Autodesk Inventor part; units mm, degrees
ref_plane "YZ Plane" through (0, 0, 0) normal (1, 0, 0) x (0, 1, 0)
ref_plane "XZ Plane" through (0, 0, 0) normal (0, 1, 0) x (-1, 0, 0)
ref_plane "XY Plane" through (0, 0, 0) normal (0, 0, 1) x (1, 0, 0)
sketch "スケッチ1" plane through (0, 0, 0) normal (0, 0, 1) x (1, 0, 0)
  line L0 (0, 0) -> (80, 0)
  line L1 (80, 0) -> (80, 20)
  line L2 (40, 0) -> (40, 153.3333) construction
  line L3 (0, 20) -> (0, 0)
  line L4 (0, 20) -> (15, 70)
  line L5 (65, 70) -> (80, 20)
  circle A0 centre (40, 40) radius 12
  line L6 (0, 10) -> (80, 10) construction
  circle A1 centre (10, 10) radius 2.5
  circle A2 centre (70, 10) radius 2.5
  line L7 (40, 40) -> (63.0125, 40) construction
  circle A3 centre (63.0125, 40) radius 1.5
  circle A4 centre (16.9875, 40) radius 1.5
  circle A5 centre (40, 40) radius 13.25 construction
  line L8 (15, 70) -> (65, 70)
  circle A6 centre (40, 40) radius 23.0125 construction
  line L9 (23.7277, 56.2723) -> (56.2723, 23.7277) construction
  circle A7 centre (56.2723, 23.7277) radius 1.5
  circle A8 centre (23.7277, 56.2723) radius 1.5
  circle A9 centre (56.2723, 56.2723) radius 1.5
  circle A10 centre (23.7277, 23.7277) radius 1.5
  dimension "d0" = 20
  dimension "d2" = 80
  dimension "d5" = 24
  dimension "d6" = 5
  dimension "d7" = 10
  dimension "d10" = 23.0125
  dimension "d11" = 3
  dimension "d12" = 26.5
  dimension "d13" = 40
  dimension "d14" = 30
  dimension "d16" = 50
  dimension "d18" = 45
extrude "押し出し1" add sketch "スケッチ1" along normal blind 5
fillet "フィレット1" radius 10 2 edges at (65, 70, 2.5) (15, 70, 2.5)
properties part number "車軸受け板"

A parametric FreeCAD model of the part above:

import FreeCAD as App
import Part
import Sketcher
from FreeCAD import Vector


def edges_at(feature, points):
    """Names of the edges that pass closest to the given points."""
    edges = feature.Shape.Edges
    near = lambda p: min(range(len(edges)), key=lambda i: edges[i].distToShape(Part.Vertex(*p))[0])
    return sorted({f"Edge{near(p) + 1}" for p in points})

doc = App.newDocument("Part")
body = doc.addObject("PartDesign::Body", "Body")

sketch1 = body.newObject("Sketcher::SketchObject", "Sketch")
sketch1.AttachmentSupport = (doc.getObject("XY_Plane"), [""])
sketch1.MapMode = "FlatFace"
sketch1.addGeometry(Part.LineSegment(Vector(0, 20, 0), Vector(0, 0, 0)), False)
sketch1.addGeometry(Part.LineSegment(Vector(0, 0, 0), Vector(80, 0, 0)), False)
sketch1.addGeometry(Part.LineSegment(Vector(80, 0, 0), Vector(80, 20, 0)), False)
sketch1.addGeometry(Part.LineSegment(Vector(80, 20, 0), Vector(65, 70, 0)), False)
sketch1.addGeometry(Part.LineSegment(Vector(65, 70, 0), Vector(15, 70, 0)), False)
sketch1.addGeometry(Part.LineSegment(Vector(15, 70, 0), Vector(0, 20, 0)), False)
sketch1.addGeometry(Part.Circle(Vector(10, 10, 0), Vector(0, 0, 1), 2.5), False)
sketch1.addGeometry(Part.Circle(Vector(23.7, 23.7, 0), Vector(0, 0, 1), 1.5), False)
sketch1.addGeometry(Part.Circle(Vector(70, 10, 0), Vector(0, 0, 1), 2.5), False)
sketch1.addGeometry(Part.Circle(Vector(56.3, 23.7, 0), Vector(0, 0, 1), 1.5), False)
sketch1.addGeometry(Part.Circle(Vector(17, 40, 0), Vector(0, 0, 1), 1.5), False)
sketch1.addGeometry(Part.Circle(Vector(23.7, 56.3, 0), Vector(0, 0, 1), 1.5), False)
sketch1.addGeometry(Part.Circle(Vector(40, 40, 0), Vector(0, 0, 1), 12), False)
sketch1.addGeometry(Part.Circle(Vector(63, 40, 0), Vector(0, 0, 1), 1.5), False)
sketch1.addGeometry(Part.Circle(Vector(56.3, 56.3, 0), Vector(0, 0, 1), 1.5), False)
sketch1.addConstraint(Sketcher.Constraint("Coincident", 0, 2, 1, 1))
sketch1.addConstraint(Sketcher.Constraint("Coincident", 1, 2, 2, 1))
sketch1.addConstraint(Sketcher.Constraint("Coincident", 2, 2, 3, 1))
sketch1.addConstraint(Sketcher.Constraint("Coincident", 3, 2, 4, 1))
sketch1.addConstraint(Sketcher.Constraint("Coincident", 4, 2, 5, 1))
sketch1.addConstraint(Sketcher.Constraint("Coincident", 5, 2, 0, 1))
sketch1.addConstraint(Sketcher.Constraint("Vertical", 0))
sketch1.addConstraint(Sketcher.Constraint("Horizontal", 1))
sketch1.addConstraint(Sketcher.Constraint("Vertical", 2))
sketch1.addConstraint(Sketcher.Constraint("Horizontal", 4))
sketch1.addConstraint(Sketcher.Constraint("Coincident", 0, 2, -1, 1))
sketch1.addConstraint(Sketcher.Constraint("Equal", 6, 8))
sketch1.addConstraint(Sketcher.Constraint("Equal", 7, 9))
sketch1.addConstraint(Sketcher.Constraint("Equal", 9, 10))
sketch1.addConstraint(Sketcher.Constraint("Equal", 10, 11))
sketch1.addConstraint(Sketcher.Constraint("Equal", 11, 13))
sketch1.addConstraint(Sketcher.Constraint("Equal", 13, 14))
sketch1.addConstraint(Sketcher.Constraint("Horizontal", 6, 3, 8, 3))
sketch1.addConstraint(Sketcher.Constraint("Horizontal", 7, 3, 9, 3))
sketch1.addConstraint(Sketcher.Constraint("Horizontal", 10, 3, 12, 3))
sketch1.addConstraint(Sketcher.Constraint("Horizontal", 12, 3, 13, 3))
sketch1.addConstraint(Sketcher.Constraint("Horizontal", 11, 3, 14, 3))
sketch1.addConstraint(Sketcher.Constraint("Horizontal", 2, 2, 5, 2))
sketch1.addConstraint(Sketcher.Constraint("Vertical", 7, 3, 11, 3))
sketch1.addConstraint(Sketcher.Constraint("Vertical", 9, 3, 14, 3))
sketch1.addConstraint(Sketcher.Constraint("Equal", 3, 5))
sketch1.addConstraint(Sketcher.Constraint("Diameter", 6, 5.0))
sketch1.addConstraint(Sketcher.Constraint("Diameter", 7, 3.0))
sketch1.addConstraint(Sketcher.Constraint("Diameter", 12, 24.0))
sketch1.addConstraint(Sketcher.Constraint("DistanceX", 1, 1, 1, 2, 80.0))
sketch1.addConstraint(Sketcher.Constraint("DistanceX", 4, 2, 4, 1, 50.0))
sketch1.addConstraint(Sketcher.Constraint("DistanceY", 0, 2, 0, 1, 20.0))
sketch1.addConstraint(Sketcher.Constraint("DistanceX", -1, 1, 6, 3, 10.0))
sketch1.addConstraint(Sketcher.Constraint("DistanceY", -1, 1, 6, 3, 10.0))
sketch1.addConstraint(Sketcher.Constraint("DistanceY", -1, 1, 10, 3, 40.0))
sketch1.addConstraint(Sketcher.Constraint("DistanceX", -1, 1, 12, 3, 40.0))
sketch1.addConstraint(Sketcher.Constraint("DistanceX", 8, 3, 1, 2, 10.0))
sketch1.addConstraint(Sketcher.Constraint("DistanceY", 13, 3, 3, 2, 30.0))
sketch1.addConstraint(Sketcher.Constraint("DistanceX", 10, 3, 12, 3, 23.0125))
sketch1.addConstraint(Sketcher.Constraint("DistanceX", 12, 3, 13, 3, 23.0125))
sketch1.addConstraint(Sketcher.Constraint("DistanceX", -1, 1, 7, 3, 23.7277))
sketch1.addConstraint(Sketcher.Constraint("DistanceY", -1, 1, 7, 3, 23.7277))
sketch1.addConstraint(Sketcher.Constraint("DistanceX", -1, 1, 9, 3, 56.2723))
sketch1.addConstraint(Sketcher.Constraint("DistanceY", -1, 1, 11, 3, 56.2723))
pad1 = body.newObject("PartDesign::Pad", "Pad")
pad1.Profile = sketch1
pad1.Length = 5
doc.recompute()

fillet = body.newObject("PartDesign::Fillet", "Fillet")
fillet.Base = (pad1, edges_at(pad1, [(65, 70, 2.5), (15, 70, 2.5)]))
fillet.Radius = 10

doc.recompute()
